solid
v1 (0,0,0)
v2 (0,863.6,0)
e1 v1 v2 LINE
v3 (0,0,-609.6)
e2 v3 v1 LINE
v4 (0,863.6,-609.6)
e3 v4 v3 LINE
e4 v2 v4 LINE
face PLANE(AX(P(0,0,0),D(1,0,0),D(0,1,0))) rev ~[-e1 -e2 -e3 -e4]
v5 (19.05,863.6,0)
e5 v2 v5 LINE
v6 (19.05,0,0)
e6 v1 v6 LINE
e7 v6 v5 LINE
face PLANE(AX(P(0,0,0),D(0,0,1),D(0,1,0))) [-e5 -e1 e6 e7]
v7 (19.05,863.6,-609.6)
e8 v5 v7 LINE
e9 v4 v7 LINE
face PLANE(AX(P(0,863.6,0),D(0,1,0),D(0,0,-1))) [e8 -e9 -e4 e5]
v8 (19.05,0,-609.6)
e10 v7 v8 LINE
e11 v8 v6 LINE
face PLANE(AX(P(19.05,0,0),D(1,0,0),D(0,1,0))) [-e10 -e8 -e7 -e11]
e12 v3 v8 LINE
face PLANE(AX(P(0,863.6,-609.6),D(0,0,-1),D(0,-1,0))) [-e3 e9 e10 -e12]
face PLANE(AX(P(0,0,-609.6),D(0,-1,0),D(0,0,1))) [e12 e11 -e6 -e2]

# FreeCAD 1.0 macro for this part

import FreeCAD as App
import Part
import Sketcher

V = App.Vector
Q = App.Units.Quantity

doc = App.newDocument("Part")
body = doc.addObject("PartDesign::Body", "Body")

sketch1 = body.newObject("Sketcher::SketchObject", "Sketch")
sketch1.AttachmentSupport = (doc.getObject("YZ_Plane"), [""])
sketch1.MapMode = "FlatFace"
sketch1.addGeometry(Part.LineSegment(V(864, 0, 0), V(0, 0, 0)), False)
sketch1.addGeometry(Part.LineSegment(V(0, 0, 0), V(0, -610, 0)), False)
sketch1.addGeometry(Part.LineSegment(V(0, -610, 0), V(864, -610, 0)), False)
sketch1.addGeometry(Part.LineSegment(V(864, -610, 0), V(864, 0, 0)), False)
sketch1.addConstraint(Sketcher.Constraint("Coincident", 0, 2, 1, 1))
sketch1.addConstraint(Sketcher.Constraint("Coincident", 1, 2, 2, 1))
sketch1.addConstraint(Sketcher.Constraint("Coincident", 2, 2, 3, 1))
sketch1.addConstraint(Sketcher.Constraint("Coincident", 3, 2, 0, 1))
sketch1.addConstraint(Sketcher.Constraint("Horizontal", 0))
sketch1.addConstraint(Sketcher.Constraint("Vertical", 1))
sketch1.addConstraint(Sketcher.Constraint("Horizontal", 2))
sketch1.addConstraint(Sketcher.Constraint("Vertical", 3))
sketch1.addConstraint(Sketcher.Constraint("Coincident", 0, 2, -1, 1))
sketch1.addConstraint(Sketcher.Constraint("DistanceX", 0, 2, 0, 1, Q("34 in")))
sketch1.addConstraint(Sketcher.Constraint("DistanceY", 1, 2, 1, 1, Q("24 in")))
pad1 = body.newObject("PartDesign::Pad", "Pad")
pad1.Profile = sketch1
pad1.Length = Q("0.75 in")

doc.recompute()
